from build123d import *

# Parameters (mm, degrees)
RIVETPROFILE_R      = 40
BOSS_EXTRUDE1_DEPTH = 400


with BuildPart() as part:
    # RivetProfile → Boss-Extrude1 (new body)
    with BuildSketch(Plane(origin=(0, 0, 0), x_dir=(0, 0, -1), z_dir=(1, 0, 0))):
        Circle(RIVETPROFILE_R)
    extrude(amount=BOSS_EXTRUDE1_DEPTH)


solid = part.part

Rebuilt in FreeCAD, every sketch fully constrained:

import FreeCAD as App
import Part
import Sketcher

doc = App.newDocument("Part")
body = doc.addObject("PartDesign::Body", "Body")

# Sketch on YZ plane
sketch1 = doc.addObject("Sketcher::SketchObject", "Sketch")
body.addObject(sketch1)
sketch1.AttachmentSupport = (doc.YZ_Plane, [""])
sketch1.MapMode = "FlatFace"
sketch1.addGeometry(Part.Circle(App.Vector(0, 0, 0), App.Vector(0, 0, 1), 40), False)
sketch1.addConstraint([
    Sketcher.Constraint("Coincident", 0, 3, -1, 1),
    Sketcher.Constraint("Diameter", 0, 80.0),
])
pad1 = doc.addObject("PartDesign::Pad", "Pad")
body.addObject(pad1)
pad1.Profile = sketch1
pad1.Length = 400

doc.recompute()
